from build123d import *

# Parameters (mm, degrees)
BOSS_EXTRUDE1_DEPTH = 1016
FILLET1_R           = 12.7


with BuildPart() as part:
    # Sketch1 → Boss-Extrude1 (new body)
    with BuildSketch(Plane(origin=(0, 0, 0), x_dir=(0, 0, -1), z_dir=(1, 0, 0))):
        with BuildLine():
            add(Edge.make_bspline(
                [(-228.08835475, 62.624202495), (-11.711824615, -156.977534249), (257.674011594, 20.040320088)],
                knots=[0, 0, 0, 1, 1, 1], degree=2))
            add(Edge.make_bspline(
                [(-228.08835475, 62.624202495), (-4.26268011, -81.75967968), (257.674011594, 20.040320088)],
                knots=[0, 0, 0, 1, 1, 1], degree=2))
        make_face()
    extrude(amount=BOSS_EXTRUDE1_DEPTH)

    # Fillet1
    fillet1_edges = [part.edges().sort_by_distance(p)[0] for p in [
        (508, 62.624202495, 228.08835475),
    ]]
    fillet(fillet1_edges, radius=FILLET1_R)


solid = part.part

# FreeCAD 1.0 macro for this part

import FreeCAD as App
import Part
import Sketcher
Q = App.Units.Quantity


def edges_at(feature, points):
    """Names of the edges that pass closest to the given points."""
    edges = feature.Shape.Edges
    near = lambda p: min(range(len(edges)), key=lambda i: edges[i].distToShape(Part.Vertex(*p))[0])
    return sorted({f"Edge{near(p) + 1}" for p in points})

doc = App.newDocument("Part")
body = doc.addObject("PartDesign::Body", "Body")

# Sketch on YZ plane
sketch1 = doc.addObject("Sketcher::SketchObject", "Sketch")
body.addObject(sketch1)
sketch1.AttachmentSupport = (doc.YZ_Plane, [""])
sketch1.MapMode = "FlatFace"
sketch1.addGeometry(Part.BSplineCurve([App.Vector(62.624202, 228.088355, 0), App.Vector(-156.977534, 11.711825, 0), App.Vector(20.04032, -257.674012, 0)], [3, 3], [0, 1], False, 2, [1, 1, 1], False), False)
sketch1.addGeometry(Part.BSplineCurve([App.Vector(62.624202, 228.088355, 0), App.Vector(-81.75968, 4.26268, 0), App.Vector(20.04032, -257.674012, 0)], [3, 3], [0, 1], False, 2, [1, 1, 1], False), False)
sketch1.addConstraint(Sketcher.Constraint("Block", 0))
sketch1.addConstraint(Sketcher.Constraint("Block", 1))
pad1 = doc.addObject("PartDesign::Pad", "Pad")
body.addObject(pad1)
pad1.Profile = sketch1
pad1.Length = Q("40 in")
doc.recompute()

fillet = doc.addObject("PartDesign::Fillet", "Fillet")
body.addObject(fillet)
fillet.Base = (pad1, edges_at(pad1, [(508, 62.624, 228.088)]))
fillet.Radius = Q("0.5 in")

doc.recompute()
